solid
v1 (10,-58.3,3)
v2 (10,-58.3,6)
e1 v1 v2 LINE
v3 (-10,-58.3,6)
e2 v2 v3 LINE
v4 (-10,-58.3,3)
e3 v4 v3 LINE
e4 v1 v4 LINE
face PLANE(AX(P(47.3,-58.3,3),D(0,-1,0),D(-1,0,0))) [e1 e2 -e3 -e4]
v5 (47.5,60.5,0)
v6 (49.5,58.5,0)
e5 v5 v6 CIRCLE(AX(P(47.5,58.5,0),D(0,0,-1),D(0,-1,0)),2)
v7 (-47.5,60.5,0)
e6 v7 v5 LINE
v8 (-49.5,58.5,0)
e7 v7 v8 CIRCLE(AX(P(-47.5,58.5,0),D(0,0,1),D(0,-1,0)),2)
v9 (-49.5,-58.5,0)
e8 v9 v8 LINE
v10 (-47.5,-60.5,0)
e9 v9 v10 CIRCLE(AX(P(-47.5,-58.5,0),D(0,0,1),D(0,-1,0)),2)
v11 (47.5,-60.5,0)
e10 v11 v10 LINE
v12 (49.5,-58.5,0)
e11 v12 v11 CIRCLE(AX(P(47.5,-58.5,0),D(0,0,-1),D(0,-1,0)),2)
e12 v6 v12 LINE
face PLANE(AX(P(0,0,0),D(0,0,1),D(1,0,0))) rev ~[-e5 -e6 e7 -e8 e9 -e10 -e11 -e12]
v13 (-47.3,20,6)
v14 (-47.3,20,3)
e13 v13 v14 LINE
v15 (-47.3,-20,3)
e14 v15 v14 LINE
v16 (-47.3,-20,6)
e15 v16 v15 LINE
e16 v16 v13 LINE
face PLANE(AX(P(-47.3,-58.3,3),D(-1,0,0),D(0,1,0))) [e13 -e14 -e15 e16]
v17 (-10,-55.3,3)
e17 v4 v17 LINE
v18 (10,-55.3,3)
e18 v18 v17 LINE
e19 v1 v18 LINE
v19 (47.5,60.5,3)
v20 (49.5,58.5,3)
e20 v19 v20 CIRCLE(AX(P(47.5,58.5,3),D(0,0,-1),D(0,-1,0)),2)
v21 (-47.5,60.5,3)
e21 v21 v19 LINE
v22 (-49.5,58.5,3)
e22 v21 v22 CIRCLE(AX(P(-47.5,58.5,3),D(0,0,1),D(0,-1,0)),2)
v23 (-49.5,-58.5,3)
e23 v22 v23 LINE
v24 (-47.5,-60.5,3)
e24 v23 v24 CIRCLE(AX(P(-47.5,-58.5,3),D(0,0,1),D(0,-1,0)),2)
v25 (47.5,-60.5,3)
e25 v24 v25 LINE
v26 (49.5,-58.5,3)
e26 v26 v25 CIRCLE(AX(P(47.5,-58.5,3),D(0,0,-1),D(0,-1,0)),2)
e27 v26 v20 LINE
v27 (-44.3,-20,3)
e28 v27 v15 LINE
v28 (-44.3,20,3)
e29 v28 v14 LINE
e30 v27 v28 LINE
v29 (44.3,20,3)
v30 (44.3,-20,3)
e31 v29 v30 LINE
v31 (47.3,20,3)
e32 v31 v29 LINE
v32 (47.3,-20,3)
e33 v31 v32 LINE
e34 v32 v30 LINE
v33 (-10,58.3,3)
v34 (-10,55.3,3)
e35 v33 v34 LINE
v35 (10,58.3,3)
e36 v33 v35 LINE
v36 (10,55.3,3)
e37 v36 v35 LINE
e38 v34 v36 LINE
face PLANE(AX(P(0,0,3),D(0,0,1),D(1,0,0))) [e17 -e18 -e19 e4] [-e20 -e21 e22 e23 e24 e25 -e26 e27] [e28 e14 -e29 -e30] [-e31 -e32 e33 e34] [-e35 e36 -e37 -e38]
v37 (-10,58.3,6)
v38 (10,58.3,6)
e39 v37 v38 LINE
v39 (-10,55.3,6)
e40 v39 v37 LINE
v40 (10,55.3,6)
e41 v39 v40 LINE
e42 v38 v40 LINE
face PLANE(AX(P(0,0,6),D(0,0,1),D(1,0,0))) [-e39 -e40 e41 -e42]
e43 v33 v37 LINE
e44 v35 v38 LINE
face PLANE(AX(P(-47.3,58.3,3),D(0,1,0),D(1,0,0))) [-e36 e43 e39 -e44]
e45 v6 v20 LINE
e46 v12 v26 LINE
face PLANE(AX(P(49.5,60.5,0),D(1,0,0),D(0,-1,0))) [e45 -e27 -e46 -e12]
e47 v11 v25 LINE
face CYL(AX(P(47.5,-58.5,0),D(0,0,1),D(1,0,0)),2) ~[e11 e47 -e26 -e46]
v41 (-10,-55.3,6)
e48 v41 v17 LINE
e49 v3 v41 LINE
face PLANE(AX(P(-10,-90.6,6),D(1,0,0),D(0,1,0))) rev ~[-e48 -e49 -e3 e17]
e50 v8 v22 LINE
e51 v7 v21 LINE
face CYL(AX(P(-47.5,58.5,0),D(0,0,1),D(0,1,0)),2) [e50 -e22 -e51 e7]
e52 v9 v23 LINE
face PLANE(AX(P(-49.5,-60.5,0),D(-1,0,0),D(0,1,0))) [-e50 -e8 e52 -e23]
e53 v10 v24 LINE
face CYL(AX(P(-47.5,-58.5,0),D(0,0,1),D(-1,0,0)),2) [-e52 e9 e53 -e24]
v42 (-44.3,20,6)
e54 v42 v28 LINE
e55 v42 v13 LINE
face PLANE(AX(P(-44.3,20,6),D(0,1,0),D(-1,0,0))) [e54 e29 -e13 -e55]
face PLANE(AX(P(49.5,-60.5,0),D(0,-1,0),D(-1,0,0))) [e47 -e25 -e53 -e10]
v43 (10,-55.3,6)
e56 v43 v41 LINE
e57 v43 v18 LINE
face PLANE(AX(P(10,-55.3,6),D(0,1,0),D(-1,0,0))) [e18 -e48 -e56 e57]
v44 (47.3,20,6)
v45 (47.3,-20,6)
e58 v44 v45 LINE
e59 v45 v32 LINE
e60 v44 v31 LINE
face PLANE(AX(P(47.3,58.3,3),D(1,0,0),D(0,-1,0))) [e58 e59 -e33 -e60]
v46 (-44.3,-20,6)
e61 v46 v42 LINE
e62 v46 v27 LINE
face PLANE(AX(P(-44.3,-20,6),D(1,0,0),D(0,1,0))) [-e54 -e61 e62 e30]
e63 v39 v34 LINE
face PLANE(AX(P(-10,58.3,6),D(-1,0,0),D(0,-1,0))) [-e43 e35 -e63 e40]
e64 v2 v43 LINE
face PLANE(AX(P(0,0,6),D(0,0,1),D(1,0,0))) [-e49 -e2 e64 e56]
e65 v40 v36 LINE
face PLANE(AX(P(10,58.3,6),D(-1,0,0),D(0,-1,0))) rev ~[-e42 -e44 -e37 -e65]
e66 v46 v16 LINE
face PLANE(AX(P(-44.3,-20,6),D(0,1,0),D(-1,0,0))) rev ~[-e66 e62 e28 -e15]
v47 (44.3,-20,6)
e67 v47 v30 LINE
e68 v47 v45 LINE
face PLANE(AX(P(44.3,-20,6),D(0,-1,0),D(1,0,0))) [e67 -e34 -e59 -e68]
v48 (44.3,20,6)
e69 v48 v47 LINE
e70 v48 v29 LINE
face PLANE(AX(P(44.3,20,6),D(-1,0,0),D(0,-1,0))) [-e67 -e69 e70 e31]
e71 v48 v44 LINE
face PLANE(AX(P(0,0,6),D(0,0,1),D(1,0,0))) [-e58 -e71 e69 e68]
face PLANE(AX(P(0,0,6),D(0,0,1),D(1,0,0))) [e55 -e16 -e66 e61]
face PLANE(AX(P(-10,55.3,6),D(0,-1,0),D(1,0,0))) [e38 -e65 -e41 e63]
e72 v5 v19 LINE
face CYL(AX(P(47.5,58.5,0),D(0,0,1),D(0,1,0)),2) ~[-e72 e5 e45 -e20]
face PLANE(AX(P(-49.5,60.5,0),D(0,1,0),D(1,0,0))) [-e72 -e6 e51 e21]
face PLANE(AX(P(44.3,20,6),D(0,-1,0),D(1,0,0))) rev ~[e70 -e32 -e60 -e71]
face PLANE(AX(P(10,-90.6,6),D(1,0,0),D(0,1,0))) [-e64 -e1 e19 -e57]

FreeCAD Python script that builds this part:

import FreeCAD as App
import Part
import Sketcher


def edges_at(feature, points):
    """Names of the edges that pass closest to the given points."""
    edges = feature.Shape.Edges
    near = lambda p: min(range(len(edges)), key=lambda i: edges[i].distToShape(Part.Vertex(*p))[0])
    return sorted({f"Edge{near(p) + 1}" for p in points})


def add_polygon(sketch, points):
    """Adds a closed chain of lines whose ends are joined by coincident constraints."""
    first, n = sketch.GeometryCount, len(points)
    for a, b in zip(points, points[1:] + points[:1]):
        sketch.addGeometry(Part.LineSegment(App.Vector(*a, 0), App.Vector(*b, 0)), False)
    for i in range(n):
        sketch.addConstraint(Sketcher.Constraint("Coincident", first + i, 2, first + (i + 1) % n, 1))

doc = App.newDocument("Part")
params = doc.addObject("Spreadsheet::Sheet", "Params")
for row, (alias, value) in enumerate([
    ("sketch1_width", "99 mm"),
    ("sketch1_height", "121 mm"),
    ("pad1_length", "3 mm"),
    ("sketch2_width", "94.6 mm"),
    ("sketch2_height", "116.6 mm"),
    ("pad2_length", "3 mm"),
    ("fillet_radius", "2 mm"),
    ("sketch3_width", "20 mm"),
    ("sketch3_height", "40 mm"),
    ("sketch3_width2", "34.3 mm"),
    ("sketch3_width3", "68.6 mm"),
    ("sketch3_height2", "70.6 mm"),
    ("pocket1_length", "3 mm"),
], start=1):
    params.set(f"A{row}", alias)
    params.set(f"B{row}", "=" + value)
    params.setAlias(f"B{row}", alias)

body = doc.addObject("PartDesign::Body", "Body")

# Sketch on XY plane
sketch1 = body.newObject("Sketcher::SketchObject", "Sketch")
sketch1.AttachmentSupport = (doc.getObject("XY_Plane"), [""])
sketch1.MapMode = "FlatFace"
add_polygon(sketch1, [(49.5, 60.5), (-49.5, 60.5), (-49.5, -60.5), (49.5, -60.5)])  # lines 0-3
sketch1.addConstraint(Sketcher.Constraint("Horizontal", 0))
sketch1.addConstraint(Sketcher.Constraint("Vertical", 1))
sketch1.addConstraint(Sketcher.Constraint("Horizontal", 2))
sketch1.addConstraint(Sketcher.Constraint("Vertical", 3))
sketch1.addConstraint(Sketcher.Constraint("Symmetric", 0, 2, 2, 2, -1, 1))
sketch1.addConstraint(Sketcher.Constraint("DistanceX", 0, 2, 0, 1, 99.0))
sketch1.addConstraint(Sketcher.Constraint("DistanceY", 1, 2, 1, 1, 121.0))
sketch1.setExpression("Constraints[9]", "Params.sketch1_width")
sketch1.setExpression("Constraints[10]", "Params.sketch1_height")
pad1 = body.newObject("PartDesign::Pad", "Pad")
pad1.Profile = sketch1
pad1.setExpression("Length", "Params.pad1_length")

# Sketch on XY plane
sketch2 = body.newObject("Sketcher::SketchObject", "Sketch001")
sketch2.AttachmentSupport = (doc.getObject("XY_Plane"), [""])
sketch2.MapMode = "FlatFace"
sketch2.AttachmentOffset = App.Placement(App.Vector(0, 0, 3), App.Rotation())
add_polygon(sketch2, [(47.3, 58.3), (-47.3, 58.3), (-47.3, -58.3), (47.3, -58.3)])  # lines 0-3
sketch2.addConstraint(Sketcher.Constraint("Horizontal", 0))
sketch2.addConstraint(Sketcher.Constraint("Vertical", 1))
sketch2.addConstraint(Sketcher.Constraint("Horizontal", 2))
sketch2.addConstraint(Sketcher.Constraint("Vertical", 3))
sketch2.addConstraint(Sketcher.Constraint("Symmetric", 0, 2, 2, 2, -1, 1))
sketch2.addConstraint(Sketcher.Constraint("DistanceX", 0, 2, 0, 1, 94.6))
sketch2.addConstraint(Sketcher.Constraint("DistanceY", 1, 2, 1, 1, 116.6))
sketch2.setExpression("Constraints[9]", "Params.sketch2_width")
sketch2.setExpression("Constraints[10]", "Params.sketch2_height")
pad2 = body.newObject("PartDesign::Pad", "Pad001")
pad2.Profile = sketch2
pad2.setExpression("Length", "Params.pad2_length")
doc.recompute()

fillet = body.newObject("PartDesign::Fillet", "Fillet")
fillet.Base = (pad2, edges_at(pad2, [
    (49.5, 60.5, 1.5),
    (-49.5, 60.5, 1.5),
    (49.5, -60.5, 1.5),
    (-49.5, -60.5, 1.5),
]))
fillet.setExpression("Radius", "Params.fillet_radius")

# Sketch on XY plane
sketch3 = body.newObject("Sketcher::SketchObject", "Sketch002")
sketch3.AttachmentSupport = (doc.getObject("XY_Plane"), [""])
sketch3.MapMode = "FlatFace"
sketch3.AttachmentOffset = App.Placement(App.Vector(0, 0, 6), App.Rotation())
add_polygon(sketch3, [(44.3, -20), (44.3, 20), (78.6, 20), (78.6, 90.6), (10, 90.6), (10, 55.3), (-10, 55.3), (-10, 90.6), (-78.6, 90.6), (-78.6, 20), (-44.3, 20), (-44.3, -20), (-78.6, -20), (-78.6, -90.6), (-10, -90.6), (-10, -55.3), (10, -55.3), (10, -90.6), (78.6, -90.6), (78.6, -20)])  # lines 0-19
sketch3.addConstraint(Sketcher.Constraint("Vertical", 0))
sketch3.addConstraint(Sketcher.Constraint("Horizontal", 1))
sketch3.addConstraint(Sketcher.Constraint("Vertical", 2))
sketch3.addConstraint(Sketcher.Constraint("Horizontal", 3))
sketch3.addConstraint(Sketcher.Constraint("Vertical", 4))
sketch3.addConstraint(Sketcher.Constraint("Horizontal", 5))
sketch3.addConstraint(Sketcher.Constraint("Vertical", 6))
sketch3.addConstraint(Sketcher.Constraint("Horizontal", 7))
sketch3.addConstraint(Sketcher.Constraint("Vertical", 8))
sketch3.addConstraint(Sketcher.Constraint("Horizontal", 9))
sketch3.addConstraint(Sketcher.Constraint("Vertical", 10))
sketch3.addConstraint(Sketcher.Constraint("Horizontal", 11))
sketch3.addConstraint(Sketcher.Constraint("Vertical", 12))
sketch3.addConstraint(Sketcher.Constraint("Horizontal", 13))
sketch3.addConstraint(Sketcher.Constraint("Vertical", 14))
sketch3.addConstraint(Sketcher.Constraint("Horizontal", 15))
sketch3.addConstraint(Sketcher.Constraint("Vertical", 16))
sketch3.addConstraint(Sketcher.Constraint("Horizontal", 17))
sketch3.addConstraint(Sketcher.Constraint("Vertical", 18))
sketch3.addConstraint(Sketcher.Constraint("Horizontal", 19))
sketch3.addConstraint(Sketcher.Constraint("Symmetric", 0, 2, 10, 2, -1, 1))
sketch3.addConstraint(Sketcher.Constraint("Symmetric", 2, 2, 12, 2, -1, 1))
sketch3.addConstraint(Sketcher.Constraint("Symmetric", 4, 2, 14, 2, -1, 1))
sketch3.addConstraint(Sketcher.Constraint("Symmetric", 6, 2, 16, 2, -1, 1))
sketch3.addConstraint(Sketcher.Constraint("Symmetric", 8, 2, 18, 2, -1, 1))
sketch3.addConstraint(Sketcher.Constraint("Symmetric", 3, 2, 6, 2, -2))
sketch3.addConstraint(Sketcher.Constraint("Symmetric", 1, 2, 8, 2, -2))
sketch3.addConstraint(Sketcher.Constraint("DistanceX", 5, 2, 5, 1, 20.0))
sketch3.addConstraint(Sketcher.Constraint("DistanceY", 0, 1, 0, 2, 40.0))
sketch3.addConstraint(Sketcher.Constraint("DistanceX", 1, 1, 1, 2, 34.3))
sketch3.addConstraint(Sketcher.Constraint("DistanceX", 3, 2, 3, 1, 68.6))
sketch3.addConstraint(Sketcher.Constraint("DistanceY", 2, 1, 2, 2, 70.6))
sketch3.addConstraint(Sketcher.Constraint("DistanceY", 4, 2, 4, 1, 35.3))
sketch3.setExpression("Constraints[47]", "Params.sketch3_width")
sketch3.setExpression("Constraints[48]", "Params.sketch3_height")
sketch3.setExpression("Constraints[49]", "Params.sketch3_width2")
sketch3.setExpression("Constraints[50]", "Params.sketch3_width3")
sketch3.setExpression("Constraints[51]", "Params.sketch3_height2")
pocket1 = body.newObject("PartDesign::Pocket", "Pocket")
pocket1.Profile = sketch3
pocket1.setExpression("Length", "Params.pocket1_length")

doc.recompute()
